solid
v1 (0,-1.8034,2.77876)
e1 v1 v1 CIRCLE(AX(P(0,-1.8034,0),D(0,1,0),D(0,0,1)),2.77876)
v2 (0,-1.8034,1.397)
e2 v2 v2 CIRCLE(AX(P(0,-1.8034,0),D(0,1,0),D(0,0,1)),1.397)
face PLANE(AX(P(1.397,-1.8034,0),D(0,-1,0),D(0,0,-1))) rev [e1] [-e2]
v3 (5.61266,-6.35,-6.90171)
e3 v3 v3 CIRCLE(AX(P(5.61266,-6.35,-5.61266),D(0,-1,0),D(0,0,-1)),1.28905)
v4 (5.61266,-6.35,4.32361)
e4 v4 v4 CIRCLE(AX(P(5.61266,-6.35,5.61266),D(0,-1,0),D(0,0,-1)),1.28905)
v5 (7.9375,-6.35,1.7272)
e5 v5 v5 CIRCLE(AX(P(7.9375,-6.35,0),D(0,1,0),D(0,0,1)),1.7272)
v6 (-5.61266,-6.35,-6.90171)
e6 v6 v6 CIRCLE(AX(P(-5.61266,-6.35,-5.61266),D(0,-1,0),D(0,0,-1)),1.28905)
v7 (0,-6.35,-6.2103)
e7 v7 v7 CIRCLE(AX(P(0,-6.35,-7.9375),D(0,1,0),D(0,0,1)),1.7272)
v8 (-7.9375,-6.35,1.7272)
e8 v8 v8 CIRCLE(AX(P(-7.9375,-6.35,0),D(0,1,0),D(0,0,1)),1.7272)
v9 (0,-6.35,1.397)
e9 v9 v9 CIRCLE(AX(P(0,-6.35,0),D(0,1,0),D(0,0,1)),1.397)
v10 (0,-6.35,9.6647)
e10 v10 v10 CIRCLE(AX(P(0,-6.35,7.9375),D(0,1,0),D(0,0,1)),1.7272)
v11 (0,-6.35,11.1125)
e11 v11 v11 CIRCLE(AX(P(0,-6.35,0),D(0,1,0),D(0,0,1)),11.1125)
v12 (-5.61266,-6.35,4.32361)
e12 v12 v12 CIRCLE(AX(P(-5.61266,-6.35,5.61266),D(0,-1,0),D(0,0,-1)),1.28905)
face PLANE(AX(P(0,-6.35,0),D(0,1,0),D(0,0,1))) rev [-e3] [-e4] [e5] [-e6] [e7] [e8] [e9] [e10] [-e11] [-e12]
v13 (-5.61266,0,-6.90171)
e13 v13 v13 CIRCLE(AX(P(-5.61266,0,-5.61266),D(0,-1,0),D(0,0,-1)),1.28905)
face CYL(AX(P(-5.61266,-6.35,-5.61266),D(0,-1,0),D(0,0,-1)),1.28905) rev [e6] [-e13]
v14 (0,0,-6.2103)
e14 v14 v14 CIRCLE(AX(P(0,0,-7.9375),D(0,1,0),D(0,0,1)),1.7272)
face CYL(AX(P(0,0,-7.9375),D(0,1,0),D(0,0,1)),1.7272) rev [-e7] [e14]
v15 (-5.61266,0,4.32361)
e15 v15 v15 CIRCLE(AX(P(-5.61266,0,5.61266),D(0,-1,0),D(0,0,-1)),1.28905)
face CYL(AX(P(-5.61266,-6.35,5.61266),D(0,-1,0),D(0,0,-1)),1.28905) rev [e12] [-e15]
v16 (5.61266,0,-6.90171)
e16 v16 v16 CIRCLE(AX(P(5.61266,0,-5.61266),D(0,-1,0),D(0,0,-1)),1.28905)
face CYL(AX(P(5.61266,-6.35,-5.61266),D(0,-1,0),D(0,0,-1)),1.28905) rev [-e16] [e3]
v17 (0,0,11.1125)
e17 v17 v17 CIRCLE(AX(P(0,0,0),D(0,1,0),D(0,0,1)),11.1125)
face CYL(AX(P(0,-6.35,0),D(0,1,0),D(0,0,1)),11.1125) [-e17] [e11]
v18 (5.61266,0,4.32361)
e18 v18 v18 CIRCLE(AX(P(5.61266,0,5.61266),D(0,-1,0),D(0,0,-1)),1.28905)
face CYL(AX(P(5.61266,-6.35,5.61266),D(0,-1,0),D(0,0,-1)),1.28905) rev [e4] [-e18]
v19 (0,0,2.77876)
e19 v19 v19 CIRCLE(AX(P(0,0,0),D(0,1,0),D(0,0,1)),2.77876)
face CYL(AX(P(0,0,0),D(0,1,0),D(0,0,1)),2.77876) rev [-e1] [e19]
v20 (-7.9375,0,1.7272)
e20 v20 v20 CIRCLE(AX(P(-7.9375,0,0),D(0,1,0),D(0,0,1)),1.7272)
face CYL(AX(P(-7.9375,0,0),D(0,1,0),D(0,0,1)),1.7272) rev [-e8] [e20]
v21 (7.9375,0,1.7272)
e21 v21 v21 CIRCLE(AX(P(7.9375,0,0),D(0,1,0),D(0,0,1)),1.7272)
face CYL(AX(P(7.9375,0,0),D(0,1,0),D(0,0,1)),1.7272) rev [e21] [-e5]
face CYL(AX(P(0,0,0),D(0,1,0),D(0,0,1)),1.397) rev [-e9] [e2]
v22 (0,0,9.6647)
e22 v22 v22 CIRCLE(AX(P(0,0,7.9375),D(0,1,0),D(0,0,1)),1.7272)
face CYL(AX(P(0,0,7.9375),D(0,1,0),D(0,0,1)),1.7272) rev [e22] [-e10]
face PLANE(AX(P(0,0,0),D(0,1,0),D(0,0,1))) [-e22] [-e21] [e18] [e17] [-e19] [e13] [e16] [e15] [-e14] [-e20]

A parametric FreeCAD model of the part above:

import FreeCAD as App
import Part
import Sketcher
Q = App.Units.Quantity

doc = App.newDocument("Part")
params = doc.addObject("Spreadsheet::Sheet", "Params")
for row, (alias, value) in enumerate([
    ("sketch1_diameter", "0.875 in"),
    ("pad1_length", "0.25 in"),
    ("sketch2_diameter", "0.136 in"),
    ("hole_diameter", "0.136 in"),
    ("hole2_diameter", "0.1015 in"),
    ("sketch4_diameter", "0.11 in"),
    ("hole3_diameter", "0.11 in"),
    ("hole3_cbore_diameter", "0.2188 in"),
    ("hole3_cbore_depth", "0.071 in"),
], start=1):
    params.set(f"A{row}", alias)
    params.set(f"B{row}", "=" + value)
    params.setAlias(f"B{row}", alias)

body = doc.addObject("PartDesign::Body", "Body")

sketch1 = body.newObject("Sketcher::SketchObject", "Sketch")
sketch1.AttachmentSupport = (doc.getObject("XZ_Plane"), [""])
sketch1.MapMode = "FlatFace"
sketch1.addGeometry(Part.Circle(App.Vector(0, 0, 0), App.Vector(0, 0, 1), 11), False)
sketch1.addConstraint([
    Sketcher.Constraint("Coincident", 0, 3, -1, 1),
    Sketcher.Constraint("Diameter", 0, Q("0.875 in")),
])
sketch1.setExpression("Constraints[1]", "Params.sketch1_diameter")
pad1 = body.newObject("PartDesign::Pad", "Pad")
pad1.Profile = sketch1
pad1.setExpression("Length", "Params.pad1_length")

sketch2 = body.newObject("Sketcher::SketchObject", "Sketch001")
sketch2.AttachmentSupport = (doc.getObject("XZ_Plane"), [""])
sketch2.MapMode = "FlatFace"
sketch2.addGeometry([
    Part.Circle(App.Vector(-7.9, 0, 0), App.Vector(0, 0, 1), 1.7),
    Part.Circle(App.Vector(0, -7.9, 0), App.Vector(0, 0, 1), 1.7),
    Part.Circle(App.Vector(7.9, 0, 0), App.Vector(0, 0, 1), 1.7),
    Part.Circle(App.Vector(0, 7.9, 0), App.Vector(0, 0, 1), 1.7),
], False)
sketch2.addConstraint([
    Sketcher.Constraint("Equal", 0, 1),
    Sketcher.Constraint("Equal", 1, 2),
    Sketcher.Constraint("Equal", 2, 3),
    Sketcher.Constraint("Symmetric", 0, 3, 2, 3, -1, 1),
    Sketcher.Constraint("Symmetric", 1, 3, 3, 3, -1, 1),
    Sketcher.Constraint("PointOnObject", 0, 3, -1),
    Sketcher.Constraint("PointOnObject", 1, 3, -2),
    Sketcher.Constraint("Diameter", 0, Q("0.136 in")),
    Sketcher.Constraint("DistanceX", 0, 3, -1, 1, Q("0.3125 in")),
    Sketcher.Constraint("DistanceY", 1, 3, -1, 1, Q("0.3125 in")),
])
sketch2.setExpression("Constraints[7]", "Params.sketch2_diameter")
doc.recompute()
hole = body.newObject("PartDesign::Hole", "Hole")
hole.Profile = sketch2
hole.ThreadType = "None"
hole.setExpression("Diameter", "Params.hole_diameter")
hole.DepthType = "ThroughAll"
hole.Reversed = True

sketch3 = body.newObject("Sketcher::SketchObject", "Sketch002")
sketch3.AttachmentSupport = (doc.getObject("XZ_Plane"), [""])
sketch3.MapMode = "FlatFace"
sketch3.AttachmentOffset = App.Placement(App.Vector(0, 0, 0.25 * 25.4), App.Rotation())
sketch3.addGeometry([
    Part.Circle(App.Vector(-5.6, -5.6, 0), App.Vector(0, 0, 1), 1.3),
    Part.Circle(App.Vector(5.6, -5.6, 0), App.Vector(0, 0, 1), 1.3),
    Part.Circle(App.Vector(5.6, 5.6, 0), App.Vector(0, 0, 1), 1.3),
    Part.Circle(App.Vector(-5.6, 5.6, 0), App.Vector(0, 0, 1), 1.3),
], False)
sketch3.addConstraint([
    Sketcher.Constraint("Equal", 0, 1),
    Sketcher.Constraint("Equal", 1, 2),
    Sketcher.Constraint("Equal", 2, 3),
    Sketcher.Constraint("Symmetric", 0, 3, 2, 3, -1, 1),
    Sketcher.Constraint("Symmetric", 1, 3, 3, 3, -1, 1),
    Sketcher.Constraint("Symmetric", 0, 3, 1, 3, -2),
    Sketcher.Constraint("Diameter", 0, Q("0.1015 in")),
    Sketcher.Constraint("DistanceX", 0, 3, -1, 1, 5.61266),
    Sketcher.Constraint("DistanceY", 0, 3, -1, 1, 5.61266),
])
doc.recompute()
hole2 = body.newObject("PartDesign::Hole", "Hole001")
hole2.Profile = sketch3
hole2.ThreadType = "None"
hole2.setExpression("Diameter", "Params.hole2_diameter")
hole2.DepthType = "ThroughAll"

sketch4 = body.newObject("Sketcher::SketchObject", "Sketch003")
sketch4.AttachmentSupport = (doc.getObject("XZ_Plane"), [""])
sketch4.MapMode = "FlatFace"
sketch4.addGeometry(Part.Circle(App.Vector(0, 0, 0), App.Vector(0, 0, 1), 1.4), False)
sketch4.addConstraint([
    Sketcher.Constraint("Coincident", 0, 3, -1, 1),
    Sketcher.Constraint("Diameter", 0, Q("0.11 in")),
])
sketch4.setExpression("Constraints[1]", "Params.sketch4_diameter")
doc.recompute()
hole3 = body.newObject("PartDesign::Hole", "Hole002")
hole3.Profile = sketch4
hole3.ThreadType = "None"
hole3.setExpression("Diameter", "Params.hole3_diameter")
hole3.DepthType = "ThroughAll"
hole3.HoleCutType = "Counterbore"
hole3.setExpression("HoleCutDiameter", "Params.hole3_cbore_diameter")
hole3.setExpression("HoleCutDepth", "Params.hole3_cbore_depth")
hole3.Reversed = True

doc.recompute()
